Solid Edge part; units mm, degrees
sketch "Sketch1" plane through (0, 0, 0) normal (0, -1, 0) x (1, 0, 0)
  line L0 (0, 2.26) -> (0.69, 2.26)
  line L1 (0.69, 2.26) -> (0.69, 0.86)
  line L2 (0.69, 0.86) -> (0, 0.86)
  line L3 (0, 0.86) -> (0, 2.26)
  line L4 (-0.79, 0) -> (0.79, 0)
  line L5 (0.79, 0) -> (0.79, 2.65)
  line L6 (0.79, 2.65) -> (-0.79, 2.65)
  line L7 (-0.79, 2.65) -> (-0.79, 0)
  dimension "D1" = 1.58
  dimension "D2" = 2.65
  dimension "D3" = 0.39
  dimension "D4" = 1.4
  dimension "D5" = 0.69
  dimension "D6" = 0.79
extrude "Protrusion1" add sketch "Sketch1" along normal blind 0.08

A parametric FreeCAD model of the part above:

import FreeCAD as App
import Part
import Sketcher

V = App.Vector
Q = App.Units.Quantity

doc = App.newDocument("Part")
params = doc.addObject("Spreadsheet::Sheet", "Params")
for row, (alias, value) in enumerate([
    ("sketch1_width", "0.69 mm"),
    ("sketch1_height", "1.4 mm"),
    ("sketch1_height2", "2.65 mm"),
    ("pad1_length", "0.08 mm"),
], start=1):
    params.set(f"A{row}", alias)
    params.set(f"B{row}", "=" + value)
    params.setAlias(f"B{row}", alias)

body = doc.addObject("PartDesign::Body", "Body")

# Sketch on XZ plane
sketch1 = doc.addObject("Sketcher::SketchObject", "Sketch")
body.addObject(sketch1)
sketch1.AttachmentSupport = (doc.XZ_Plane, [""])
sketch1.MapMode = "FlatFace"
sketch1.addGeometry(Part.LineSegment(V(-0.8, 2.6, 0), V(-0.8, 0, 0)), False)
sketch1.addGeometry(Part.LineSegment(V(-0.8, 0, 0), V(0.8, 0, 0)), False)
sketch1.addGeometry(Part.LineSegment(V(0.8, 0, 0), V(0.8, 2.6, 0)), False)
sketch1.addGeometry(Part.LineSegment(V(0.8, 2.6, 0), V(-0.8, 2.6, 0)), False)
sketch1.addGeometry(Part.LineSegment(V(0, 0.9, 0), V(0, 2.3, 0)), False)
sketch1.addGeometry(Part.LineSegment(V(0, 2.3, 0), V(0.7, 2.3, 0)), False)
sketch1.addGeometry(Part.LineSegment(V(0.7, 2.3, 0), V(0.7, 0.9, 0)), False)
sketch1.addGeometry(Part.LineSegment(V(0.7, 0.9, 0), V(0, 0.9, 0)), False)
sketch1.addConstraint(Sketcher.Constraint("Coincident", 0, 2, 1, 1))
sketch1.addConstraint(Sketcher.Constraint("Coincident", 1, 2, 2, 1))
sketch1.addConstraint(Sketcher.Constraint("Coincident", 2, 2, 3, 1))
sketch1.addConstraint(Sketcher.Constraint("Coincident", 3, 2, 0, 1))
sketch1.addConstraint(Sketcher.Constraint("Coincident", 4, 2, 5, 1))
sketch1.addConstraint(Sketcher.Constraint("Coincident", 5, 2, 6, 1))
sketch1.addConstraint(Sketcher.Constraint("Coincident", 6, 2, 7, 1))
sketch1.addConstraint(Sketcher.Constraint("Coincident", 7, 2, 4, 1))
sketch1.addConstraint(Sketcher.Constraint("Vertical", 0))
sketch1.addConstraint(Sketcher.Constraint("Horizontal", 1))
sketch1.addConstraint(Sketcher.Constraint("Vertical", 2))
sketch1.addConstraint(Sketcher.Constraint("Horizontal", 3))
sketch1.addConstraint(Sketcher.Constraint("Vertical", 4))
sketch1.addConstraint(Sketcher.Constraint("Horizontal", 5))
sketch1.addConstraint(Sketcher.Constraint("Vertical", 6))
sketch1.addConstraint(Sketcher.Constraint("Horizontal", 7))
sketch1.addConstraint(Sketcher.Constraint("Symmetric", 0, 2, 1, 2, -1, 1))
sketch1.addConstraint(Sketcher.Constraint("PointOnObject", 4, 2, -2))
sketch1.addConstraint(Sketcher.Constraint("DistanceX", 5, 1, 5, 2, Q("0.69 mm")))
sketch1.addConstraint(Sketcher.Constraint("DistanceX", 0, 2, -1, 1, Q("0.79 mm")))
sketch1.addConstraint(Sketcher.Constraint("DistanceY", 4, 1, 4, 2, Q("1.4 mm")))
sketch1.addConstraint(Sketcher.Constraint("DistanceY", 0, 2, 0, 1, Q("2.65 mm")))
sketch1.addConstraint(Sketcher.Constraint("DistanceY", -1, 1, 4, 2, Q("2.26 mm")))
sketch1.setExpression("Constraints[18]", "Params.sketch1_width")
sketch1.setExpression("Constraints[20]", "Params.sketch1_height")
sketch1.setExpression("Constraints[21]", "Params.sketch1_height2")
pad1 = doc.addObject("PartDesign::Pad", "Pad")
body.addObject(pad1)
pad1.Profile = sketch1
pad1.setExpression("Length", "Params.pad1_length")

doc.recompute()
